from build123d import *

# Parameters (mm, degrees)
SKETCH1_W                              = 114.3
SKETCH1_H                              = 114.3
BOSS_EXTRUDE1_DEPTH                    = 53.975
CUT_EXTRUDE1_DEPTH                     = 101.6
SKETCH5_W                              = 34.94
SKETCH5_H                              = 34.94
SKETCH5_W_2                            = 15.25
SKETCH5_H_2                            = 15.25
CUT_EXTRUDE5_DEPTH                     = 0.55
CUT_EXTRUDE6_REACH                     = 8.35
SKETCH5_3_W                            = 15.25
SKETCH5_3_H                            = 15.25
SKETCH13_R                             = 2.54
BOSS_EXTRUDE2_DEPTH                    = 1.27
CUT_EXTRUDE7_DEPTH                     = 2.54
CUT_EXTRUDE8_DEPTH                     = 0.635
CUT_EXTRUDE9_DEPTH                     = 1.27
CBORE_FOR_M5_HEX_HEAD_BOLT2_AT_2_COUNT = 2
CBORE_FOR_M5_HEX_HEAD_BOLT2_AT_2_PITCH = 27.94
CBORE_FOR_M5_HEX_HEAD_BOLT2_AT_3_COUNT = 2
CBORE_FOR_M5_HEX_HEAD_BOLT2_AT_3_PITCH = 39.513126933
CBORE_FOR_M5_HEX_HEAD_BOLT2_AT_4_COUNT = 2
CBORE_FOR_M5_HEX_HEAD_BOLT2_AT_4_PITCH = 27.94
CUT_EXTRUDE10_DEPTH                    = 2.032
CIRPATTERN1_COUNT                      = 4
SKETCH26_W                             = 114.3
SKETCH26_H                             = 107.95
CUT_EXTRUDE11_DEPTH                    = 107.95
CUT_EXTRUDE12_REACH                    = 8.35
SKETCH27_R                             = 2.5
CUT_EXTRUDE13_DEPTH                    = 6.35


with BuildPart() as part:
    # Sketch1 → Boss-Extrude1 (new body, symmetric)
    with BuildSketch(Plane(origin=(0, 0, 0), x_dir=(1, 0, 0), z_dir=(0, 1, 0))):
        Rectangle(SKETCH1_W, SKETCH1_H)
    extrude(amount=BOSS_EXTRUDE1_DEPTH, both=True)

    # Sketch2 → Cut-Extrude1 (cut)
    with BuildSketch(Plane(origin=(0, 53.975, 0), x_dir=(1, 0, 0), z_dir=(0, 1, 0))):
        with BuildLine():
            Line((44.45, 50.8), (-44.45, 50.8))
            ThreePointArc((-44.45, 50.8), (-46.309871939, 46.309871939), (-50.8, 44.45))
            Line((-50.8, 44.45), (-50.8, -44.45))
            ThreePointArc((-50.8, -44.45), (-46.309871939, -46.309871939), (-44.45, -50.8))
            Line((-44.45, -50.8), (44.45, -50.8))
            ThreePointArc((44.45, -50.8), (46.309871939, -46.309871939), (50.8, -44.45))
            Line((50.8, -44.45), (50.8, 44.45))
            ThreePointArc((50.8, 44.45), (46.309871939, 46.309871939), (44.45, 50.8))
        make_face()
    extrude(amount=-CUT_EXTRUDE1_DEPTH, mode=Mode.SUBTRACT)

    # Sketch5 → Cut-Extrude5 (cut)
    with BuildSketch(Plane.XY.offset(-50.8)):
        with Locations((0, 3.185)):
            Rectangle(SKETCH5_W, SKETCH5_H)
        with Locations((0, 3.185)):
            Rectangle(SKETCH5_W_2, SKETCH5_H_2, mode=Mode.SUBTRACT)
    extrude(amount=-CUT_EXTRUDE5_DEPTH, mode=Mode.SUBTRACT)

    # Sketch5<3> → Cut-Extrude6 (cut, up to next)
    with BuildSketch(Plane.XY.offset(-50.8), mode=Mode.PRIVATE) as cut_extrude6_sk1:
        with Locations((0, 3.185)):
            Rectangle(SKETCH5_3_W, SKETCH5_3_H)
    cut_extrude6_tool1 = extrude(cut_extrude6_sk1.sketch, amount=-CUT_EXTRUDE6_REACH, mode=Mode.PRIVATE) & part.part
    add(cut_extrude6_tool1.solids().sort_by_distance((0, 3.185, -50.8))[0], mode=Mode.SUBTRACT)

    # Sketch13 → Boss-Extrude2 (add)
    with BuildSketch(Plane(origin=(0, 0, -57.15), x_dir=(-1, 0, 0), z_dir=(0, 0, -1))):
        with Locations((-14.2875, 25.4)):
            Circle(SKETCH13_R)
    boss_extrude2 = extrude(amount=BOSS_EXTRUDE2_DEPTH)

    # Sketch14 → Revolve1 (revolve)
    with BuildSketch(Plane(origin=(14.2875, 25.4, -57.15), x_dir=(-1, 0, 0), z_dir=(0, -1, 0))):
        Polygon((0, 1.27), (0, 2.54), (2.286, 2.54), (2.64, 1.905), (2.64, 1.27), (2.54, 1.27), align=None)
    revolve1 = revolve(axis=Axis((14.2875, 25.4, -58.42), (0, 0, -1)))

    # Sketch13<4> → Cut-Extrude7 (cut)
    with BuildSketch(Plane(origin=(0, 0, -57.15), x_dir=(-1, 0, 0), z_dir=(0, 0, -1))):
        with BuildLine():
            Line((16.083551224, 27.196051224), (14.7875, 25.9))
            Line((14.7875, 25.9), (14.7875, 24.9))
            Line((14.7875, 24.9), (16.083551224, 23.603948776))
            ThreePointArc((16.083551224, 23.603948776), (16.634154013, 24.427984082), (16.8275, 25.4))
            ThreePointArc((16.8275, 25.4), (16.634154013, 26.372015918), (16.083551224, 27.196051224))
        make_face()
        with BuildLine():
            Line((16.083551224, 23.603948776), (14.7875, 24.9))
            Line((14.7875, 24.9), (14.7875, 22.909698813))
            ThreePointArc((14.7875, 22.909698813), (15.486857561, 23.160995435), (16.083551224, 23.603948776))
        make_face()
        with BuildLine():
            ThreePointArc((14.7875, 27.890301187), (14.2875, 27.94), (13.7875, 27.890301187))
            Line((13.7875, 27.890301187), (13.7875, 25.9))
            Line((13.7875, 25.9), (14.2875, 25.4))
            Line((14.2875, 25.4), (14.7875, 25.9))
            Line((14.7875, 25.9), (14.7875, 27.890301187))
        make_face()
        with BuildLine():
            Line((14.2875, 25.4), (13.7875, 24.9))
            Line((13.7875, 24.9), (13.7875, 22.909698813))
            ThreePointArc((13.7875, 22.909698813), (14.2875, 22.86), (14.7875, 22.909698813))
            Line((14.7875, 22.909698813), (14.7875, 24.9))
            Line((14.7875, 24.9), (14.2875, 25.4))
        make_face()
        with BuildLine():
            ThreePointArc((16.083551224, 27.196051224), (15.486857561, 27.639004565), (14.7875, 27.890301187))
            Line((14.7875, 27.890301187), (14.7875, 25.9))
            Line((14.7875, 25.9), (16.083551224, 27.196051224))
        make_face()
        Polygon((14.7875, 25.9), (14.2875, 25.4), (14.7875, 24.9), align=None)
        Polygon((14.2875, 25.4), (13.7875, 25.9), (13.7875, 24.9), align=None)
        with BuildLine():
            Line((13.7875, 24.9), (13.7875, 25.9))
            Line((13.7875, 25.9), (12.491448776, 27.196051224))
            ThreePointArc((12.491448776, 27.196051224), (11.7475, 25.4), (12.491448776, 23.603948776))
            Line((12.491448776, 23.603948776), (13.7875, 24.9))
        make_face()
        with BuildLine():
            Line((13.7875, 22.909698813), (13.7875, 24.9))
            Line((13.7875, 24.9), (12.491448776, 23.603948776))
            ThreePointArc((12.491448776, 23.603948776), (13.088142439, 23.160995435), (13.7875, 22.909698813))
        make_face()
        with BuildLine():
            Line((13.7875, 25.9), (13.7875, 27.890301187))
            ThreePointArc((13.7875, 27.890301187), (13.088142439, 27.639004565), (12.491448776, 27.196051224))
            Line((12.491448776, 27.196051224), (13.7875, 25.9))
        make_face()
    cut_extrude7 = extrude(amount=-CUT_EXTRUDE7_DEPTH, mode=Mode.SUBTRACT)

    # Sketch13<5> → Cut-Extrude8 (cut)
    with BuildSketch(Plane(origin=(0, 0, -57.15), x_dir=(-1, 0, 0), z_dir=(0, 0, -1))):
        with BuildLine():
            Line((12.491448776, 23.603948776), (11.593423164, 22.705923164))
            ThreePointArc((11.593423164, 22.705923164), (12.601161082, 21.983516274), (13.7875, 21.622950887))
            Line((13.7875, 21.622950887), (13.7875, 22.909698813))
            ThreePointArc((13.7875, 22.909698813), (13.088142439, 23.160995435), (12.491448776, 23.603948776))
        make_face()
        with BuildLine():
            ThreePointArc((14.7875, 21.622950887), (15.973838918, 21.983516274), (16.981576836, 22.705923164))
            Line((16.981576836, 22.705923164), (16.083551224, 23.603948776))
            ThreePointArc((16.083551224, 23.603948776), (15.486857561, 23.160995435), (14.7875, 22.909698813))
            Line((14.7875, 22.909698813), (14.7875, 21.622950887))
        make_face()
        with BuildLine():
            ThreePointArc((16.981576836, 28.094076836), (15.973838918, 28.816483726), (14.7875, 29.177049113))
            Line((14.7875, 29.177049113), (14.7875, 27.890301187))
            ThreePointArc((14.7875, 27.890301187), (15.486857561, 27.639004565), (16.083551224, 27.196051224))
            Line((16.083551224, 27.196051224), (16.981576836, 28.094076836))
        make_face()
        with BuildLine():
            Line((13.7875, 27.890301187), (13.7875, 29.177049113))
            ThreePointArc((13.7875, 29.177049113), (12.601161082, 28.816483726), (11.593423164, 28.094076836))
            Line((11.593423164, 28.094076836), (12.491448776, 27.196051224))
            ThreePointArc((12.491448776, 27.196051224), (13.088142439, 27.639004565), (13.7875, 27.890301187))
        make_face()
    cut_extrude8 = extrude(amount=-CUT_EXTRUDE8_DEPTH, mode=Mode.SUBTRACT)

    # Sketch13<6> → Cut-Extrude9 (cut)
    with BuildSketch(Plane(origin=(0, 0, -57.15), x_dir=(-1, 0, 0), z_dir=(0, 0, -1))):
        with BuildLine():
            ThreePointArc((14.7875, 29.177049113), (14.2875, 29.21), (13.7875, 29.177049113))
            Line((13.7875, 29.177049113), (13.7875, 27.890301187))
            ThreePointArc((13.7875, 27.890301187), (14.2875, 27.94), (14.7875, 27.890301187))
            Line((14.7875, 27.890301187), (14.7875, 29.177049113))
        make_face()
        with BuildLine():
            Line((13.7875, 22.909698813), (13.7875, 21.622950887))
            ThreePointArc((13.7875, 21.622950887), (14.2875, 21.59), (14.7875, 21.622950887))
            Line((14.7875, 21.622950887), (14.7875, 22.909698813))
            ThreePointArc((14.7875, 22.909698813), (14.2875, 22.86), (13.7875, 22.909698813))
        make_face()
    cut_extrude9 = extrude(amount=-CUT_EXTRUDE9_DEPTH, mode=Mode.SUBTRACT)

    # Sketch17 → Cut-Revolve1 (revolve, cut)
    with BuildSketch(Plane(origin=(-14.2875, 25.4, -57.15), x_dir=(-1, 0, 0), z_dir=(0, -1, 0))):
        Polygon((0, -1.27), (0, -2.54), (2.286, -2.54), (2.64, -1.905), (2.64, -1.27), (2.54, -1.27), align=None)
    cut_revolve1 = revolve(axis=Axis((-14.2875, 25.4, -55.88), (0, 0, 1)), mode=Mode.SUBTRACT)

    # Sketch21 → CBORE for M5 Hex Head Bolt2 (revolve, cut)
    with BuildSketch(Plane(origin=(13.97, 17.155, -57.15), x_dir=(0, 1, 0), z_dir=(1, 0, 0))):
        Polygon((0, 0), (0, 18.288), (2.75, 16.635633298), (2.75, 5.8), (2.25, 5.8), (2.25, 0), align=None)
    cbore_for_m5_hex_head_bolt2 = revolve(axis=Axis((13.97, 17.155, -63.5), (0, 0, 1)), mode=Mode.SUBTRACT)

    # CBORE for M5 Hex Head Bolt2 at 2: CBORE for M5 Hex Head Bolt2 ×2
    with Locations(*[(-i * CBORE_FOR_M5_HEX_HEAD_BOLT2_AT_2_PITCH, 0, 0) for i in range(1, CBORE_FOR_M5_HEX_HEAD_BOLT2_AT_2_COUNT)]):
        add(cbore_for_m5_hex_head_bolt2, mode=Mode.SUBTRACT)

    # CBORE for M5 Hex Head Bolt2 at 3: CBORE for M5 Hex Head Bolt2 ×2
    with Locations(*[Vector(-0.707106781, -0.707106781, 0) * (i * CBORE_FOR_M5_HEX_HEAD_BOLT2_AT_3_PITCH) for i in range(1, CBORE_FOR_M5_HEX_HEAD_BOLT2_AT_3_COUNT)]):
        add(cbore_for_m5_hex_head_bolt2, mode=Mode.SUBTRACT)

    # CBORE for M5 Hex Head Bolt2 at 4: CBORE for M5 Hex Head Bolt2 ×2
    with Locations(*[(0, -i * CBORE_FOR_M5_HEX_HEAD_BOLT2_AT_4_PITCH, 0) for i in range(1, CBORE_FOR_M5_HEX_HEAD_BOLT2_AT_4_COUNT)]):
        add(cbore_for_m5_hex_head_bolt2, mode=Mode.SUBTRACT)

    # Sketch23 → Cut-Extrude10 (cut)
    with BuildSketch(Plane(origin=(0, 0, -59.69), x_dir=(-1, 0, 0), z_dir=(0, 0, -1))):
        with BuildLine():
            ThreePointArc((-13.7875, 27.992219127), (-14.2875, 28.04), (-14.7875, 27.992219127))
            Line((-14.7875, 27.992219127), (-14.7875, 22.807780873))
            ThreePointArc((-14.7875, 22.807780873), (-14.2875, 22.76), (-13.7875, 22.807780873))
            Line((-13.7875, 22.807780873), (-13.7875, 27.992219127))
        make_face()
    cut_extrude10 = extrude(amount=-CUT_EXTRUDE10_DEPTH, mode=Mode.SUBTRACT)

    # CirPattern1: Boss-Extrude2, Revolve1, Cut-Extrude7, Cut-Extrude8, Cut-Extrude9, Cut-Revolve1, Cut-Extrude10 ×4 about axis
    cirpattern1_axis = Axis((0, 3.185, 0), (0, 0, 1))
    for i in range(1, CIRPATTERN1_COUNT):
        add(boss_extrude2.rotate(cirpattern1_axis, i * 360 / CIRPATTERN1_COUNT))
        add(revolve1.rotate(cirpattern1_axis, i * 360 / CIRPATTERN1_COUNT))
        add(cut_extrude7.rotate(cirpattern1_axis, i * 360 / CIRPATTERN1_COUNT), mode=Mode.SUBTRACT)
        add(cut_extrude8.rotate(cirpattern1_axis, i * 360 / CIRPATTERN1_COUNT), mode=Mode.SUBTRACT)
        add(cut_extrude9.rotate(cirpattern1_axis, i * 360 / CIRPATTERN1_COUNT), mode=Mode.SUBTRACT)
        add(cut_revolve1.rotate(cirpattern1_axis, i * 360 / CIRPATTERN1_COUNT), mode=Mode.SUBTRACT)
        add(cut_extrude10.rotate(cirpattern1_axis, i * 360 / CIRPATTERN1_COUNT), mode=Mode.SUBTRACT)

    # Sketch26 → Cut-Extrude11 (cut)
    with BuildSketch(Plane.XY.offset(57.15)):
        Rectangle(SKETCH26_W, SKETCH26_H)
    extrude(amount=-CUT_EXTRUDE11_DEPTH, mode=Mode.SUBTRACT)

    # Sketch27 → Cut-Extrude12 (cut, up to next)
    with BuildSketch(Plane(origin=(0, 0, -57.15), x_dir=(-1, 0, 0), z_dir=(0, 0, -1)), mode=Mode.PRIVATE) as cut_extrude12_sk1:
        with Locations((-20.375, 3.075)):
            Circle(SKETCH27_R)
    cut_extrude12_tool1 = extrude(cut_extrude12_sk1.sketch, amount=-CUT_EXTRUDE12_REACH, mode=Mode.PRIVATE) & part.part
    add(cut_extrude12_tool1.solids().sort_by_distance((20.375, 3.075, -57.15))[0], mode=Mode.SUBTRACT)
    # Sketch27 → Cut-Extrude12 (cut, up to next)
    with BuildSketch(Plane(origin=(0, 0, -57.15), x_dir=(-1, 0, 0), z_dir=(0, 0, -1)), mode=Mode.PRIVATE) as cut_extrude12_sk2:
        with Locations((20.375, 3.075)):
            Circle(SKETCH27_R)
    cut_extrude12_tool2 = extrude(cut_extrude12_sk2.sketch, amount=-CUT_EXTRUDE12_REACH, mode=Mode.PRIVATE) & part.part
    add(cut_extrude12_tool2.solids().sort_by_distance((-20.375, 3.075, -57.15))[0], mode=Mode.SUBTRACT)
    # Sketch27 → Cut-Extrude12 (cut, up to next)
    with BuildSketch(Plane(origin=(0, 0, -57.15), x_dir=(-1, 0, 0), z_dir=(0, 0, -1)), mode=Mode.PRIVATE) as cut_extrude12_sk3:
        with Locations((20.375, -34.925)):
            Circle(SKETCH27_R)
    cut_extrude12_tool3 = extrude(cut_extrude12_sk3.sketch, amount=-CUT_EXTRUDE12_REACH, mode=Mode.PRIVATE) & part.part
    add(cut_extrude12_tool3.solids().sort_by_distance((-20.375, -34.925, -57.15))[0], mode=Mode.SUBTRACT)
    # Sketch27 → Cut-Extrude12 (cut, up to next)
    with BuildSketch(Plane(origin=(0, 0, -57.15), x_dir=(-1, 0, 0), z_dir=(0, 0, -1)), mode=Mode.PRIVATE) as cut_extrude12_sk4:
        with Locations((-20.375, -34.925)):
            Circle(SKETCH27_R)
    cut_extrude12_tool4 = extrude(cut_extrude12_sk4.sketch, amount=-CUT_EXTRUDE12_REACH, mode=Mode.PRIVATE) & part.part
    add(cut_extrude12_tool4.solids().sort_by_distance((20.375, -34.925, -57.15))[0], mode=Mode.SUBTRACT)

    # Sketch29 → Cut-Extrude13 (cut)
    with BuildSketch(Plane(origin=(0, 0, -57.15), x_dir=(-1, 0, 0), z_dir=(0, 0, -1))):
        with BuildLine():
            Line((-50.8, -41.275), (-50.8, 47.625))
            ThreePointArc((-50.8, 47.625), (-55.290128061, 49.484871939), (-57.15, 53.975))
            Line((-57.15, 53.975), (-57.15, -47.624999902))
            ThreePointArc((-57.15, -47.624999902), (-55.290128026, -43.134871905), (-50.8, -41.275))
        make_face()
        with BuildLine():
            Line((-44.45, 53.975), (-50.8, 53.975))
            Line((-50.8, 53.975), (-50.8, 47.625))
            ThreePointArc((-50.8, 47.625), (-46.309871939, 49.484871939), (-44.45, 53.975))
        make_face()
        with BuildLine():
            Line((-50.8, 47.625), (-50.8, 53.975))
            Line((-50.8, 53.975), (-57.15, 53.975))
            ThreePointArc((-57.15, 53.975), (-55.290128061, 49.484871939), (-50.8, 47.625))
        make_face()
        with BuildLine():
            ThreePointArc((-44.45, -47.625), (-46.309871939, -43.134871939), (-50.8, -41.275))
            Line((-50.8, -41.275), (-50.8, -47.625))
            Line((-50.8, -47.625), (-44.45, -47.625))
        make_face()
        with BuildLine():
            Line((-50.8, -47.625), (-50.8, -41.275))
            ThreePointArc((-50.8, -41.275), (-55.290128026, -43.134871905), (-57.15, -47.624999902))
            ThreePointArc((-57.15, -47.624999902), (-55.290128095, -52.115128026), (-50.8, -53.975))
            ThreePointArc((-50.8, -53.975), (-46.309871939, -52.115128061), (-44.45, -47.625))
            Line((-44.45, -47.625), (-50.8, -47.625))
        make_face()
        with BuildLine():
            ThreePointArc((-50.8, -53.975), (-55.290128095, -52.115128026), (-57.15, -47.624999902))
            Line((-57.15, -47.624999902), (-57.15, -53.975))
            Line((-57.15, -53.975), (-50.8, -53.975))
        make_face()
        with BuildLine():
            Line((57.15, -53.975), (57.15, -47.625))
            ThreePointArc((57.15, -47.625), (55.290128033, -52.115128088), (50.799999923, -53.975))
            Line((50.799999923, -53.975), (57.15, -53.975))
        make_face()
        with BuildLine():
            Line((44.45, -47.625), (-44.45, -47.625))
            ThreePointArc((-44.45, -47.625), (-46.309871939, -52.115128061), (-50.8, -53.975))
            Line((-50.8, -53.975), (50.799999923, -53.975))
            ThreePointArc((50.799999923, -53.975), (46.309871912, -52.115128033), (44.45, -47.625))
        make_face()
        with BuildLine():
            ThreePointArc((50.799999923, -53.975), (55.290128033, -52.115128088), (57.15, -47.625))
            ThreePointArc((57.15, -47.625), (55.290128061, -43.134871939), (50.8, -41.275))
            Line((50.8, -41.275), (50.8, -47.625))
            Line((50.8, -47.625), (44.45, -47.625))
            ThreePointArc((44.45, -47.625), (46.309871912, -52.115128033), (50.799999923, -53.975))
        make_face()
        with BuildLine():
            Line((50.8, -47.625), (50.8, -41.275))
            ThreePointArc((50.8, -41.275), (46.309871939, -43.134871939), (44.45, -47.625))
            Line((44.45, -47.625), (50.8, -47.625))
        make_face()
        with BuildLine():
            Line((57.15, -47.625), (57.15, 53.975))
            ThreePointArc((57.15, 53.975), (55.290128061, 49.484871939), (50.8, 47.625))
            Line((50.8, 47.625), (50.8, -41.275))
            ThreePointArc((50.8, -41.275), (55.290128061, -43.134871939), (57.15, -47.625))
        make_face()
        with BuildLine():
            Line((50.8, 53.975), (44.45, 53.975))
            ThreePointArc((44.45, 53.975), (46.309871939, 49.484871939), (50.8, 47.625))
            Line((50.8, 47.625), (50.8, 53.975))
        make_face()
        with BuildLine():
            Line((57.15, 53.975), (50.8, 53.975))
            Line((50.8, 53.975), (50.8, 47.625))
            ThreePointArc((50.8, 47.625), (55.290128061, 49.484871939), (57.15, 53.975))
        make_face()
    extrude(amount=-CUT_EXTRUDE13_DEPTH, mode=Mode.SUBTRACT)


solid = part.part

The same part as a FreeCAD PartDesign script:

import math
import FreeCAD as App
import Part
import Sketcher
Q = App.Units.Quantity


def add_polygon(sketch, points):
    """Adds a closed chain of lines whose ends are joined by coincident constraints."""
    first, n = sketch.GeometryCount, len(points)
    for a, b in zip(points, points[1:] + points[:1]):
        sketch.addGeometry(Part.LineSegment(App.Vector(*a, 0), App.Vector(*b, 0)), False)
    for i in range(n):
        sketch.addConstraint(Sketcher.Constraint("Coincident", first + i, 2, first + (i + 1) % n, 1))

doc = App.newDocument("Part")
body = doc.addObject("PartDesign::Body", "Body")

sketch1 = doc.addObject("Sketcher::SketchObject", "Sketch")
body.addObject(sketch1)
sketch1.AttachmentSupport = (doc.XZ_Plane, [""])
sketch1.MapMode = "FlatFace"
add_polygon(sketch1, [(-57.15, -57.15), (-57.15, 57.15), (57.15, 57.15), (57.15, -57.15)])
sketch1.addConstraint([
    Sketcher.Constraint("Vertical", 0),
    Sketcher.Constraint("Horizontal", 1),
    Sketcher.Constraint("Vertical", 2),
    Sketcher.Constraint("Horizontal", 3),
    Sketcher.Constraint("Symmetric", 0, 2, 2, 2, -1, 1),
    Sketcher.Constraint("Equal", 3, 0),
    Sketcher.Constraint("DistanceX", 1, 1, 1, 2, Q("4.5 in")),
])
pad1 = doc.addObject("PartDesign::Pad", "Pad")
body.addObject(pad1)
pad1.Profile = sketch1
pad1.Length = Q("4.25 in")
pad1.Midplane = True

sketch2 = doc.addObject("Sketcher::SketchObject", "Sketch001")
body.addObject(sketch2)
sketch2.AttachmentSupport = (doc.XZ_Plane, [""])
sketch2.MapMode = "FlatFace"
sketch2.AttachmentOffset = App.Placement(App.Vector(0, 0, -2.125 * 25.4), App.Rotation())
sketch2.addGeometry([
    Part.LineSegment(App.Vector(44.45, -50.8, 0), App.Vector(-44.45, -50.8, 0)),
    Part.ArcOfCircle(Part.Circle(App.Vector(-50.8, -50.8, 0), App.Vector(0, 0, 1), 6.35), math.radians(0), math.radians(90)),
    Part.LineSegment(App.Vector(-50.8, -44.45, 0), App.Vector(-50.8, 44.45, 0)),
    Part.ArcOfCircle(Part.Circle(App.Vector(-50.8, 50.8, 0), App.Vector(0, 0, 1), 6.35), math.radians(-90), math.radians(0)),
    Part.LineSegment(App.Vector(-44.45, 50.8, 0), App.Vector(44.45, 50.8, 0)),
    Part.ArcOfCircle(Part.Circle(App.Vector(50.8, 50.8, 0), App.Vector(0, 0, 1), 6.35), math.radians(180), math.radians(270)),
    Part.LineSegment(App.Vector(50.8, 44.45, 0), App.Vector(50.8, -44.45, 0)),
    Part.ArcOfCircle(Part.Circle(App.Vector(50.8, -50.8, 0), App.Vector(0, 0, 1), 6.35), math.radians(90), math.radians(180)),
], False)
sketch2.addConstraint([
    Sketcher.Constraint("Coincident", 0, 2, 1, 1),
    Sketcher.Constraint("Coincident", 1, 2, 2, 1),
    Sketcher.Constraint("Coincident", 2, 2, 3, 1),
    Sketcher.Constraint("Coincident", 3, 2, 4, 1),
    Sketcher.Constraint("Coincident", 4, 2, 5, 1),
    Sketcher.Constraint("Coincident", 5, 2, 6, 1),
    Sketcher.Constraint("Coincident", 6, 2, 7, 1),
    Sketcher.Constraint("Coincident", 7, 2, 0, 1),
    Sketcher.Constraint("Horizontal", 0),
    Sketcher.Constraint("Vertical", 2),
    Sketcher.Constraint("Horizontal", 4),
    Sketcher.Constraint("Vertical", 6),
    Sketcher.Constraint("Equal", 1, 3),
    Sketcher.Constraint("Equal", 3, 5),
    Sketcher.Constraint("Equal", 5, 7),
    Sketcher.Constraint("Symmetric", 1, 3, 5, 3, -1, 1),
    Sketcher.Constraint("Symmetric", 3, 3, 7, 3, -1, 1),
    Sketcher.Constraint("Symmetric", 3, 3, 5, 3, -2),
    Sketcher.Constraint("Horizontal", 7, 3, 0, 2),
    Sketcher.Constraint("Horizontal", 5, 3, 3, 2),
    Sketcher.Constraint("Vertical", 3, 3, 1, 2),
    Sketcher.Constraint("Vertical", 7, 3, 5, 2),
    Sketcher.Constraint("Equal", 4, 2),
    Sketcher.Constraint("Radius", 1, Q("0.25 in")),
    Sketcher.Constraint("DistanceX", 0, 2, 0, 1, Q("3.5 in")),
])
pocket1 = doc.addObject("PartDesign::Pocket", "Pocket")
body.addObject(pocket1)
pocket1.Profile = sketch2
pocket1.Length = Q("4 in")
pocket1.Reversed = True

sketch3 = doc.addObject("Sketcher::SketchObject", "Sketch002")
body.addObject(sketch3)
sketch3.AttachmentSupport = (doc.XY_Plane, [""])
sketch3.MapMode = "FlatFace"
sketch3.AttachmentOffset = App.Placement(App.Vector(0, 0, -2 * 25.4), App.Rotation())
add_polygon(sketch3, [(-17.47, 20.655), (-17.47, -14.285), (17.47, -14.285), (17.47, 20.655)])
add_polygon(sketch3, [(7.625, -4.44), (-7.625, -4.44), (-7.625, 10.81), (7.625, 10.81)])
sketch3.addConstraint([
    Sketcher.Constraint("Vertical", 0),
    Sketcher.Constraint("Horizontal", 1),
    Sketcher.Constraint("Vertical", 2),
    Sketcher.Constraint("Horizontal", 3),
    Sketcher.Constraint("Horizontal", 4),
    Sketcher.Constraint("Vertical", 5),
    Sketcher.Constraint("Horizontal", 6),
    Sketcher.Constraint("Vertical", 7),
    Sketcher.Constraint("Equal", 3, 0),
    Sketcher.Constraint("Equal", 6, 5),
    Sketcher.Constraint("DistanceX", 1, 1, 1, 2, Q("34.94 mm")),
    Sketcher.Constraint("DistanceX", 4, 2, 4, 1, Q("15.25 mm")),
    Sketcher.Constraint("DistanceX", 0, 2, -1, 1, Q("17.47 mm")),
    Sketcher.Constraint("DistanceY", 0, 2, -1, 1, Q("14.285 mm")),
    Sketcher.Constraint("DistanceX", 4, 2, -1, 1, Q("7.625 mm")),
    Sketcher.Constraint("DistanceY", 4, 2, -1, 1, Q("4.44 mm")),
])
pocket2 = doc.addObject("PartDesign::Pocket", "Pocket001")
body.addObject(pocket2)
pocket2.Profile = sketch3
pocket2.Length = 0.55

sketch4 = doc.addObject("Sketcher::SketchObject", "Sketch003")
body.addObject(sketch4)
sketch4.AttachmentSupport = (doc.XY_Plane, [""])
sketch4.MapMode = "FlatFace"
sketch4.AttachmentOffset = App.Placement(App.Vector(0, 0, -2 * 25.4), App.Rotation())
add_polygon(sketch4, [(-7.625, 10.81), (-7.625, -4.44), (7.625, -4.44), (7.625, 10.81)])
sketch4.addConstraint([
    Sketcher.Constraint("Vertical", 0),
    Sketcher.Constraint("Horizontal", 1),
    Sketcher.Constraint("Vertical", 2),
    Sketcher.Constraint("Horizontal", 3),
    Sketcher.Constraint("Equal", 3, 0),
    Sketcher.Constraint("DistanceX", 1, 1, 1, 2, Q("15.25 mm")),
    Sketcher.Constraint("DistanceX", 0, 2, -1, 1, Q("7.625 mm")),
    Sketcher.Constraint("DistanceY", 0, 2, -1, 1, Q("4.44 mm")),
])
pocket3 = doc.addObject("PartDesign::Pocket", "Pocket002")
body.addObject(pocket3)
pocket3.Profile = sketch4
pocket3.Type = "UpToFirst"

sketch5 = doc.addObject("Sketcher::SketchObject", "Sketch004")
body.addObject(sketch5)
sketch5.AttachmentSupport = (doc.XY_Plane, [""])
sketch5.MapMode = "FlatFace"
sketch5.AttachmentOffset = App.Placement(App.Vector(0, 0, -2.25 * 25.4), App.Rotation())
sketch5.addGeometry(Part.Circle(App.Vector(14.2875, 25.4, 0), App.Vector(0, 0, 1), 2.54), False)
sketch5.addConstraint([
    Sketcher.Constraint("Diameter", 0, Q("0.2 in")),
    Sketcher.Constraint("DistanceY", -1, 1, 0, 3, Q("1 in")),
    Sketcher.Constraint("DistanceX", -1, 1, 0, 3, Q("0.5625 in")),
])
pad2 = doc.addObject("PartDesign::Pad", "Pad001")
body.addObject(pad2)
pad2.Profile = sketch5
pad2.Length = Q("0.05 in")
pad2.Reversed = True

sketch6 = doc.addObject("Sketcher::SketchObject", "Sketch005")
body.addObject(sketch6)
sketch6.AttachmentSupport = (doc.XZ_Plane, [""])
sketch6.MapMode = "FlatFace"
sketch6.AttachmentOffset = App.Placement(App.Vector(0, 0, -1 * 25.4), App.Rotation())
add_polygon(sketch6, [(14.2875, -59.69), (14.2875, -58.42), (11.6475, -58.42), (11.6475, -59.055), (12.0015, -59.69)])
sketch6.addGeometry(Part.LineSegment(App.Vector(14.2875, -58.42, 0), App.Vector(14.2875, -59.69, 0)), True)
sketch6.addConstraint([
    Sketcher.Constraint("Vertical", 0),
    Sketcher.Constraint("Horizontal", 1),
    Sketcher.Constraint("Vertical", 2),
    Sketcher.Constraint("Horizontal", 4),
    Sketcher.Constraint("Vertical", 5),
    Sketcher.Constraint("Coincident", 5, 1, 0, 2),
    Sketcher.Constraint("Horizontal", 3, 2, 5, 2),
    Sketcher.Constraint("DistanceX", 4, 1, 4, 2, Q("0.09 in")),
    Sketcher.Constraint("DistanceY", 0, 1, 0, 2, Q("0.05 in")),
    Sketcher.Constraint("DistanceY", 0, 2, -1, 1, Q("2.3 in")),
    Sketcher.Constraint("DistanceY", 2, 2, 2, 1, Q("0.025 in")),
    Sketcher.Constraint("DistanceX", -1, 1, 0, 2, Q("0.5625 in")),
    Sketcher.Constraint("DistanceX", 1, 2, 1, 1, Q("2.64 mm")),
])
revolution = doc.addObject("PartDesign::Revolution", "Revolution")
body.addObject(revolution)
revolution.Profile = sketch6
revolution.ReferenceAxis = (sketch6, ["Axis0"])
revolution.Angle = 360

sketch7 = doc.addObject("Sketcher::SketchObject", "Sketch006")
body.addObject(sketch7)
sketch7.AttachmentSupport = (doc.XY_Plane, [""])
sketch7.MapMode = "FlatFace"
sketch7.AttachmentOffset = App.Placement(App.Vector(0, 0, -2.25 * 25.4), App.Rotation())
sketch7.addGeometry([
    Part.ArcOfCircle(Part.Circle(App.Vector(-14.2875, 25.4, 0), App.Vector(0, 0, 1), 2.54), math.radians(-101.352839), math.radians(-78.647161)),
    Part.ArcOfCircle(Part.Circle(App.Vector(-14.2875, 25.4, 0), App.Vector(0, 0, 1), 2.54), math.radians(-135), math.radians(-101.352839)),
    Part.ArcOfCircle(Part.Circle(App.Vector(-14.2875, 25.4, 0), App.Vector(0, 0, 1), 2.54), math.radians(180), math.radians(225)),
    Part.ArcOfCircle(Part.Circle(App.Vector(-14.2875, 25.4, 0), App.Vector(0, 0, 1), 2.54), math.radians(135), math.radians(180)),
    Part.ArcOfCircle(Part.Circle(App.Vector(-14.2875, 25.4, 0), App.Vector(0, 0, 1), 2.54), math.radians(101.352839), math.radians(135)),
    Part.ArcOfCircle(Part.Circle(App.Vector(-14.2875, 25.4, 0), App.Vector(0, 0, 1), 2.54), math.radians(78.647161), math.radians(101.352839)),
    Part.ArcOfCircle(Part.Circle(App.Vector(-14.2875, 25.4, 0), App.Vector(0, 0, 1), 2.54), math.radians(45), math.radians(78.647161)),
    Part.ArcOfCircle(Part.Circle(App.Vector(-14.2875, 25.4, 0), App.Vector(0, 0, 1), 2.54), math.radians(-45), math.radians(45)),
    Part.ArcOfCircle(Part.Circle(App.Vector(-14.2875, 25.4, 0), App.Vector(0, 0, 1), 2.54), math.radians(-78.647161), math.radians(-45)),
], False)
sketch7.addConstraint([
    Sketcher.Constraint("Tangent", 0, 1, 1, 2),
    Sketcher.Constraint("Tangent", 1, 1, 2, 2),
    Sketcher.Constraint("Tangent", 2, 1, 3, 2),
    Sketcher.Constraint("Tangent", 3, 1, 4, 2),
    Sketcher.Constraint("Tangent", 4, 1, 5, 2),
    Sketcher.Constraint("Tangent", 5, 1, 6, 2),
    Sketcher.Constraint("Tangent", 6, 1, 7, 2),
    Sketcher.Constraint("Tangent", 7, 1, 8, 2),
    Sketcher.Constraint("Tangent", 8, 1, 0, 2),
    Sketcher.Constraint("Coincident", 2, 3, 0, 3),
    Sketcher.Constraint("Coincident", 4, 3, 0, 3),
    Sketcher.Constraint("Coincident", 6, 3, 0, 3),
    Sketcher.Constraint("Horizontal", 8, 3, 2, 1),
    Sketcher.Constraint("Horizontal", 4, 1, 5, 1),
    Sketcher.Constraint("Horizontal", 3, 1, 6, 1),
    Sketcher.Constraint("Horizontal", 1, 1, 7, 1),
    Sketcher.Constraint("Horizontal", 0, 1, 8, 1),
    Sketcher.Constraint("Vertical", 1, 1, 3, 1),
    Sketcher.Constraint("Vertical", 0, 1, 4, 1),
    Sketcher.Constraint("Radius", 0, Q("0.1 in")),
    Sketcher.Constraint("DistanceY", -1, 1, 0, 3, Q("1 in")),
    Sketcher.Constraint("DistanceX", 0, 3, -1, 1, Q("0.5625 in")),
    Sketcher.Constraint("DistanceX", 0, 1, -1, 1, Q("14.7875 mm")),
    Sketcher.Constraint("DistanceX", 1, 1, -1, 1, Q("16.083551 mm")),
])
pocket4 = doc.addObject("PartDesign::Pocket", "Pocket003")
body.addObject(pocket4)
pocket4.Profile = sketch7
pocket4.Length = Q("0.1 in")
pocket4.Reversed = True

sketch8 = doc.addObject("Sketcher::SketchObject", "Sketch007")
body.addObject(sketch8)
sketch8.AttachmentSupport = (doc.XY_Plane, [""])
sketch8.MapMode = "FlatFace"
sketch8.AttachmentOffset = App.Placement(App.Vector(0, 0, -2.25 * 25.4), App.Rotation())
sketch8.addGeometry([
    Part.LineSegment(App.Vector(-12.491449, 23.603949, 0), App.Vector(-11.593423, 22.705923, 0)),
    Part.ArcOfCircle(Part.Circle(App.Vector(-14.2875, 25.4, 0), App.Vector(0, 0, 1), 3.81), math.radians(-82.459117), math.radians(-45)),
    Part.LineSegment(App.Vector(-13.7875, 21.622951, 0), App.Vector(-13.7875, 22.909699, 0)),
    Part.ArcOfCircle(Part.Circle(App.Vector(-14.2875, 25.4, 0), App.Vector(0, 0, 1), 2.54), math.radians(-78.647161), math.radians(-45)),
    Part.ArcOfCircle(Part.Circle(App.Vector(-14.2875, 25.4, 0), App.Vector(0, 0, 1), 3.81), math.radians(-135), math.radians(-97.540883)),
    Part.LineSegment(App.Vector(-16.981577, 22.705923, 0), App.Vector(-16.083551, 23.603949, 0)),
    Part.ArcOfCircle(Part.Circle(App.Vector(-14.2875, 25.4, 0), App.Vector(0, 0, 1), 2.54), math.radians(-135), math.radians(-101.352839)),
    Part.LineSegment(App.Vector(-14.7875, 22.909699, 0), App.Vector(-14.7875, 21.622951, 0)),
    Part.ArcOfCircle(Part.Circle(App.Vector(-14.2875, 25.4, 0), App.Vector(0, 0, 1), 3.81), math.radians(97.540883), math.radians(135)),
    Part.LineSegment(App.Vector(-14.7875, 29.177049, 0), App.Vector(-14.7875, 27.890301, 0)),
    Part.ArcOfCircle(Part.Circle(App.Vector(-14.2875, 25.4, 0), App.Vector(0, 0, 1), 2.54), math.radians(101.352839), math.radians(135)),
    Part.LineSegment(App.Vector(-16.083551, 27.196051, 0), App.Vector(-16.981577, 28.094077, 0)),
    Part.LineSegment(App.Vector(-13.7875, 27.890301, 0), App.Vector(-13.7875, 29.177049, 0)),
    Part.ArcOfCircle(Part.Circle(App.Vector(-14.2875, 25.4, 0), App.Vector(0, 0, 1), 3.81), math.radians(45), math.radians(82.459117)),
    Part.LineSegment(App.Vector(-11.593423, 28.094077, 0), App.Vector(-12.491449, 27.196051, 0)),
    Part.ArcOfCircle(Part.Circle(App.Vector(-14.2875, 25.4, 0), App.Vector(0, 0, 1), 2.54), math.radians(45), math.radians(78.647161)),
], False)
sketch8.addConstraint([
    Sketcher.Constraint("Coincident", 0, 2, 1, 2),
    Sketcher.Constraint("Coincident", 1, 1, 2, 1),
    Sketcher.Constraint("Coincident", 2, 2, 3, 1),
    Sketcher.Constraint("Coincident", 3, 2, 0, 1),
    Sketcher.Constraint("Coincident", 4, 1, 5, 1),
    Sketcher.Constraint("Coincident", 5, 2, 6, 1),
    Sketcher.Constraint("Coincident", 6, 2, 7, 1),
    Sketcher.Constraint("Coincident", 7, 2, 4, 2),
    Sketcher.Constraint("Coincident", 8, 1, 9, 1),
    Sketcher.Constraint("Coincident", 9, 2, 10, 1),
    Sketcher.Constraint("Coincident", 10, 2, 11, 1),
    Sketcher.Constraint("Coincident", 11, 2, 8, 2),
    Sketcher.Constraint("Coincident", 12, 2, 13, 2),
    Sketcher.Constraint("Coincident", 13, 1, 14, 1),
    Sketcher.Constraint("Coincident", 14, 2, 15, 1),
    Sketcher.Constraint("Coincident", 15, 2, 12, 1),
    Sketcher.Constraint("Vertical", 2),
    Sketcher.Constraint("Vertical", 7),
    Sketcher.Constraint("Vertical", 9),
    Sketcher.Constraint("Vertical", 12),
    Sketcher.Constraint("Coincident", 3, 3, 1, 3),
    Sketcher.Constraint("Coincident", 4, 3, 1, 3),
    Sketcher.Constraint("Coincident", 6, 3, 1, 3),
    Sketcher.Constraint("Coincident", 8, 3, 1, 3),
    Sketcher.Constraint("Coincident", 10, 3, 1, 3),
    Sketcher.Constraint("Coincident", 13, 3, 1, 3),
    Sketcher.Constraint("Coincident", 15, 3, 1, 3),
    Sketcher.Constraint("Equal", 1, 4),
    Sketcher.Constraint("Equal", 3, 6),
    Sketcher.Constraint("Equal", 4, 8),
    Sketcher.Constraint("Equal", 6, 10),
    Sketcher.Constraint("Equal", 8, 13),
    Sketcher.Constraint("Equal", 10, 15),
    Sketcher.Constraint("Perpendicular", 0, 5),
    Sketcher.Constraint("Perpendicular", 5, 11),
    Sketcher.Constraint("Perpendicular", 11, 14),
    Sketcher.Constraint("Horizontal", 0, 2, 4, 1),
    Sketcher.Constraint("Horizontal", 3, 2, 5, 2),
    Sketcher.Constraint("Horizontal", 2, 2, 6, 2),
    Sketcher.Constraint("Horizontal", 8, 1, 12, 2),
    Sketcher.Constraint("Horizontal", 11, 2, 13, 1),
    Sketcher.Constraint("Vertical", 7, 2, 8, 1),
    Sketcher.Constraint("Vertical", 5, 2, 10, 2),
    Sketcher.Constraint("Radius", 3, Q("0.1 in")),
    Sketcher.Constraint("Radius", 1, Q("0.15 in")),
    Sketcher.Constraint("DistanceY", -1, 1, 1, 3, Q("1 in")),
    Sketcher.Constraint("DistanceX", 1, 3, -1, 1, Q("0.5625 in")),
    Sketcher.Constraint("DistanceX", 1, 1, -1, 1, Q("13.7875 mm")),
    Sketcher.Constraint("DistanceX", 3, 2, -1, 1, Q("12.491449 mm")),
])
pocket5 = doc.addObject("PartDesign::Pocket", "Pocket004")
body.addObject(pocket5)
pocket5.Profile = sketch8
pocket5.Length = Q("0.025 in")
pocket5.Reversed = True

sketch9 = doc.addObject("Sketcher::SketchObject", "Sketch008")
body.addObject(sketch9)
sketch9.AttachmentSupport = (doc.XY_Plane, [""])
sketch9.MapMode = "FlatFace"
sketch9.AttachmentOffset = App.Placement(App.Vector(0, 0, -2.25 * 25.4), App.Rotation())
sketch9.addGeometry([
    Part.ArcOfCircle(Part.Circle(App.Vector(-14.2875, 25.4, 0), App.Vector(0, 0, 1), 3.81), math.radians(82.459117), math.radians(97.540883)),
    Part.LineSegment(App.Vector(-13.7875, 29.177049, 0), App.Vector(-13.7875, 27.890301, 0)),
    Part.ArcOfCircle(Part.Circle(App.Vector(-14.2875, 25.4, 0), App.Vector(0, 0, 1), 2.54), math.radians(78.647161), math.radians(101.352839)),
    Part.LineSegment(App.Vector(-14.7875, 27.890301, 0), App.Vector(-14.7875, 29.177049, 0)),
    Part.LineSegment(App.Vector(-13.7875, 22.909699, 0), App.Vector(-13.7875, 21.622951, 0)),
    Part.ArcOfCircle(Part.Circle(App.Vector(-14.2875, 25.4, 0), App.Vector(0, 0, 1), 3.81), math.radians(-97.540883), math.radians(-82.459117)),
    Part.LineSegment(App.Vector(-14.7875, 21.622951, 0), App.Vector(-14.7875, 22.909699, 0)),
    Part.ArcOfCircle(Part.Circle(App.Vector(-14.2875, 25.4, 0), App.Vector(0, 0, 1), 2.54), math.radians(-101.352839), math.radians(-78.647161)),
], False)
sketch9.addConstraint([
    Sketcher.Constraint("Coincident", 0, 1, 1, 1),
    Sketcher.Constraint("Coincident", 1, 2, 2, 1),
    Sketcher.Constraint("Coincident", 2, 2, 3, 1),
    Sketcher.Constraint("Coincident", 3, 2, 0, 2),
    Sketcher.Constraint("Coincident", 4, 2, 5, 2),
    Sketcher.Constraint("Coincident", 5, 1, 6, 1),
    Sketcher.Constraint("Coincident", 6, 2, 7, 1),
    Sketcher.Constraint("Coincident", 7, 2, 4, 1),
    Sketcher.Constraint("Vertical", 1),
    Sketcher.Constraint("Vertical", 3),
    Sketcher.Constraint("Vertical", 4),
    Sketcher.Constraint("Vertical", 6),
    Sketcher.Constraint("Coincident", 2, 3, 0, 3),
    Sketcher.Constraint("Coincident", 5, 3, 0, 3),
    Sketcher.Constraint("Coincident", 7, 3, 0, 3),
    Sketcher.Constraint("Equal", 0, 5),
    Sketcher.Constraint("Equal", 2, 7),
    Sketcher.Constraint("Horizontal", 1, 2, 2, 2),
    Sketcher.Constraint("Horizontal", 4, 2, 5, 1),
    Sketcher.Constraint("Vertical", 1, 2, 4, 2),
    Sketcher.Constraint("Radius", 2, Q("0.1 in")),
    Sketcher.Constraint("Radius", 0, Q("0.15 in")),
    Sketcher.Constraint("DistanceY", -1, 1, 0, 3, Q("1 in")),
    Sketcher.Constraint("DistanceX", 0, 3, -1, 1, Q("0.5625 in")),
    Sketcher.Constraint("DistanceX", 0, 1, -1, 1, Q("13.7875 mm")),
])
pocket6 = doc.addObject("PartDesign::Pocket", "Pocket005")
body.addObject(pocket6)
pocket6.Profile = sketch9
pocket6.Length = Q("0.05 in")
pocket6.Reversed = True

sketch10 = doc.addObject("Sketcher::SketchObject", "Sketch009")
body.addObject(sketch10)
sketch10.AttachmentSupport = (doc.XZ_Plane, [""])
sketch10.MapMode = "FlatFace"
sketch10.AttachmentOffset = App.Placement(App.Vector(0, 0, -1 * 25.4), App.Rotation())
add_polygon(sketch10, [(-14.2875, -55.88), (-14.2875, -54.61), (-16.5735, -54.61), (-16.9275, -55.245), (-16.9275, -55.88)])
sketch10.addGeometry(Part.LineSegment(App.Vector(-14.2875, -55.88, 0), App.Vector(-14.2875, -54.61, 0)), True)
sketch10.addConstraint([
    Sketcher.Constraint("Vertical", 0),
    Sketcher.Constraint("Horizontal", 1),
    Sketcher.Constraint("Vertical", 3),
    Sketcher.Constraint("Horizontal", 4),
    Sketcher.Constraint("Vertical", 5),
    Sketcher.Constraint("Coincident", 5, 1, 4, 2),
    Sketcher.Constraint("Horizontal", 1, 2, 5, 2),
    Sketcher.Constraint("DistanceX", 1, 2, 1, 1, Q("0.09 in")),
    Sketcher.Constraint("DistanceY", 0, 1, 0, 2, Q("0.05 in")),
    Sketcher.Constraint("DistanceY", 3, 2, -1, 1, Q("2.2 in")),
    Sketcher.Constraint("DistanceY", 3, 2, 3, 1, Q("0.025 in")),
    Sketcher.Constraint("DistanceX", 0, 2, -1, 1, Q("0.5625 in")),
    Sketcher.Constraint("DistanceX", 4, 1, 4, 2, Q("2.64 mm")),
])
groove = doc.addObject("PartDesign::Groove", "Groove")
body.addObject(groove)
groove.Profile = sketch10
groove.ReferenceAxis = (sketch10, ["Axis0"])
groove.Angle = 360

sketch11 = doc.addObject("Sketcher::SketchObject", "Sketch010")
body.addObject(sketch11)
sketch11.AttachmentSupport = (doc.YZ_Plane, [""])
sketch11.MapMode = "FlatFace"
sketch11.AttachmentOffset = App.Placement(App.Vector(0, 0, 0.55 * 25.4), App.Rotation())
add_polygon(sketch11, [(17.155, -38.862), (17.155, -57.15), (19.405, -57.15), (19.405, -51.35), (19.905, -51.35), (19.905, -40.514367)])
sketch11.addGeometry(Part.LineSegment(App.Vector(17.155, -57.15, 0), App.Vector(17.155, -38.862, 0)), True)
sketch11.addConstraint([
    Sketcher.Constraint("Vertical", 0),
    Sketcher.Constraint("Horizontal", 1),
    Sketcher.Constraint("Vertical", 2),
    Sketcher.Constraint("Horizontal", 3),
    Sketcher.Constraint("Vertical", 4),
    Sketcher.Constraint("Vertical", 6),
    Sketcher.Constraint("Coincident", 6, 1, 0, 2),
    Sketcher.Constraint("Equal", 0, 6),
    Sketcher.Constraint("Angle", 5, Q("149 deg")),
    Sketcher.Constraint("DistanceY", 0, 2, 0, 1, Q("0.72 in")),
    Sketcher.Constraint("DistanceY", 0, 2, -1, 1, Q("2.25 in")),
    Sketcher.Constraint("DistanceX", 1, 1, 1, 2, Q("2.25 mm")),
    Sketcher.Constraint("DistanceX", 3, 1, 3, 2, Q("0.5 mm")),
    Sketcher.Constraint("DistanceY", 2, 1, 2, 2, Q("5.8 mm")),
    Sketcher.Constraint("DistanceX", -1, 1, 0, 2, Q("17.155 mm")),
])
groove2 = doc.addObject("PartDesign::Groove", "Groove001")
body.addObject(groove2)
groove2.Profile = sketch11
groove2.ReferenceAxis = (sketch11, ["Axis0"])
groove2.Angle = 360
doc.recompute()

linearpattern = doc.addObject("PartDesign::LinearPattern", "LinearPattern")
body.addObject(linearpattern)
linearpattern.Originals = [groove2]
linearpattern.Direction = (doc.X_Axis, [""])
linearpattern.Mode = "offset"
linearpattern.Offset = Q("1.1 in")
linearpattern.Occurrences = 2
linearpattern.Reversed = True
body.Tip = linearpattern
doc.recompute()

datumline = doc.addObject("PartDesign::Line", "DatumLine")
body.addObject(datumline)
datumline.Placement = App.Placement(App.Vector(0, 0, 0), App.Rotation(App.Vector(0, 0, 1), App.Vector(-0.707106781, -0.707106781, 0)))
linearpattern2 = doc.addObject("PartDesign::LinearPattern", "LinearPattern001")
body.addObject(linearpattern2)
linearpattern2.Originals = [groove2]
linearpattern2.Direction = (datumline, [""])
linearpattern2.Mode = "offset"
linearpattern2.Offset = 39.513127
linearpattern2.Occurrences = 2
body.Tip = linearpattern2
doc.recompute()

linearpattern3 = doc.addObject("PartDesign::LinearPattern", "LinearPattern002")
body.addObject(linearpattern3)
linearpattern3.Originals = [groove2]
linearpattern3.Direction = (doc.Y_Axis, [""])
linearpattern3.Mode = "offset"
linearpattern3.Offset = Q("1.1 in")
linearpattern3.Occurrences = 2
linearpattern3.Reversed = True
body.Tip = linearpattern3

sketch12 = doc.addObject("Sketcher::SketchObject", "Sketch011")
body.addObject(sketch12)
sketch12.AttachmentSupport = (doc.XY_Plane, [""])
sketch12.MapMode = "FlatFace"
sketch12.AttachmentOffset = App.Placement(App.Vector(0, 0, -2.35 * 25.4), App.Rotation())
sketch12.addGeometry([
    Part.ArcOfCircle(Part.Circle(App.Vector(14.2875, 25.4, 0), App.Vector(0, 0, 1), 2.64), math.radians(79.082583), math.radians(100.917417)),
    Part.LineSegment(App.Vector(14.7875, 27.992219, 0), App.Vector(14.7875, 22.807781, 0)),
    Part.ArcOfCircle(Part.Circle(App.Vector(14.2875, 25.4, 0), App.Vector(0, 0, 1), 2.64), math.radians(-100.917417), math.radians(-79.082583)),
    Part.LineSegment(App.Vector(13.7875, 22.807781, 0), App.Vector(13.7875, 27.992219, 0)),
], False)
sketch12.addConstraint([
    Sketcher.Constraint("Coincident", 0, 1, 1, 1),
    Sketcher.Constraint("Coincident", 1, 2, 2, 2),
    Sketcher.Constraint("Coincident", 2, 1, 3, 1),
    Sketcher.Constraint("Coincident", 3, 2, 0, 2),
    Sketcher.Constraint("Vertical", 1),
    Sketcher.Constraint("Vertical", 3),
    Sketcher.Constraint("Coincident", 2, 3, 0, 3),
    Sketcher.Constraint("Equal", 0, 2),
    Sketcher.Constraint("Horizontal", 1, 2, 2, 1),
    Sketcher.Constraint("DistanceY", -1, 1, 0, 3, Q("1 in")),
    Sketcher.Constraint("Radius", 0, Q("2.64 mm")),
    Sketcher.Constraint("DistanceX", -1, 1, 0, 3, Q("0.5625 in")),
    Sketcher.Constraint("DistanceY", 1, 2, 1, 1, Q("5.184438 mm")),
])
pocket7 = doc.addObject("PartDesign::Pocket", "Pocket006")
body.addObject(pocket7)
pocket7.Profile = sketch12
pocket7.Length = Q("0.08 in")
pocket7.Reversed = True
doc.recompute()

datumline2 = doc.addObject("PartDesign::Line", "DatumLine001")
body.addObject(datumline2)
datumline2.Placement = App.Placement(App.Vector(0, 3.185, 0), App.Rotation(App.Vector(0, 0, 1), App.Vector(0, 0, 1)))
polarpattern = doc.addObject("PartDesign::PolarPattern", "PolarPattern")
body.addObject(polarpattern)
polarpattern.Originals = [pad2, revolution, pocket4, pocket5, pocket6, groove, pocket7]
polarpattern.Axis = (datumline2, [""])
polarpattern.Angle = 360
polarpattern.Occurrences = 4
body.Tip = polarpattern

sketch13 = doc.addObject("Sketcher::SketchObject", "Sketch012")
body.addObject(sketch13)
sketch13.AttachmentSupport = (doc.XY_Plane, [""])
sketch13.MapMode = "FlatFace"
sketch13.AttachmentOffset = App.Placement(App.Vector(0, 0, 2.25 * 25.4), App.Rotation())
add_polygon(sketch13, [(-57.15, 53.975), (-57.15, -53.975), (57.15, -53.975), (57.15, 53.975)])
sketch13.addConstraint([
    Sketcher.Constraint("Vertical", 0),
    Sketcher.Constraint("Horizontal", 1),
    Sketcher.Constraint("Vertical", 2),
    Sketcher.Constraint("Horizontal", 3),
    Sketcher.Constraint("Symmetric", 0, 2, 2, 2, -1, 1),
    Sketcher.Constraint("DistanceX", 1, 1, 1, 2, Q("4.5 in")),
    Sketcher.Constraint("DistanceY", 0, 2, 0, 1, Q("4.25 in")),
])
pocket8 = doc.addObject("PartDesign::Pocket", "Pocket007")
body.addObject(pocket8)
pocket8.Profile = sketch13
pocket8.Length = Q("4.25 in")

sketch14 = doc.addObject("Sketcher::SketchObject", "Sketch013")
body.addObject(sketch14)
sketch14.AttachmentSupport = (doc.XY_Plane, [""])
sketch14.MapMode = "FlatFace"
sketch14.AttachmentOffset = App.Placement(App.Vector(0, 0, -2.25 * 25.4), App.Rotation())
sketch14.addGeometry(Part.Circle(App.Vector(20.375, 3.075, 0), App.Vector(0, 0, 1), 2.5), False)
sketch14.addConstraint([
    Sketcher.Constraint("Diameter", 0, Q("5 mm")),
    Sketcher.Constraint("DistanceX", -1, 1, 0, 3, Q("20.375 mm")),
    Sketcher.Constraint("DistanceY", -1, 1, 0, 3, Q("3.075 mm")),
])
pocket9 = doc.addObject("PartDesign::Pocket", "Pocket008")
body.addObject(pocket9)
pocket9.Profile = sketch14
pocket9.Type = "UpToFirst"
pocket9.Reversed = True

sketch15 = doc.addObject("Sketcher::SketchObject", "Sketch014")
body.addObject(sketch15)
sketch15.AttachmentSupport = (doc.XY_Plane, [""])
sketch15.MapMode = "FlatFace"
sketch15.AttachmentOffset = App.Placement(App.Vector(0, 0, -2.25 * 25.4), App.Rotation())
sketch15.addGeometry(Part.Circle(App.Vector(-20.375, 3.075, 0), App.Vector(0, 0, 1), 2.5), False)
sketch15.addConstraint([
    Sketcher.Constraint("Diameter", 0, Q("5 mm")),
    Sketcher.Constraint("DistanceX", 0, 3, -1, 1, Q("20.375 mm")),
    Sketcher.Constraint("DistanceY", -1, 1, 0, 3, Q("3.075 mm")),
])
pocket10 = doc.addObject("PartDesign::Pocket", "Pocket009")
body.addObject(pocket10)
pocket10.Profile = sketch15
pocket10.Type = "UpToFirst"
pocket10.Reversed = True

sketch16 = doc.addObject("Sketcher::SketchObject", "Sketch015")
body.addObject(sketch16)
sketch16.AttachmentSupport = (doc.XY_Plane, [""])
sketch16.MapMode = "FlatFace"
sketch16.AttachmentOffset = App.Placement(App.Vector(0, 0, -2.25 * 25.4), App.Rotation())
sketch16.addGeometry(Part.Circle(App.Vector(-20.375, -34.925, 0), App.Vector(0, 0, 1), 2.5), False)
sketch16.addConstraint([
    Sketcher.Constraint("Diameter", 0, Q("5 mm")),
    Sketcher.Constraint("DistanceY", 0, 3, -1, 1, Q("1.375 in")),
    Sketcher.Constraint("DistanceX", 0, 3, -1, 1, Q("20.375 mm")),
])
pocket11 = doc.addObject("PartDesign::Pocket", "Pocket010")
body.addObject(pocket11)
pocket11.Profile = sketch16
pocket11.Type = "UpToFirst"
pocket11.Reversed = True

sketch17 = doc.addObject("Sketcher::SketchObject", "Sketch016")
body.addObject(sketch17)
sketch17.AttachmentSupport = (doc.XY_Plane, [""])
sketch17.MapMode = "FlatFace"
sketch17.AttachmentOffset = App.Placement(App.Vector(0, 0, -2.25 * 25.4), App.Rotation())
sketch17.addGeometry(Part.Circle(App.Vector(20.375, -34.925, 0), App.Vector(0, 0, 1), 2.5), False)
sketch17.addConstraint([
    Sketcher.Constraint("Diameter", 0, Q("5 mm")),
    Sketcher.Constraint("DistanceY", 0, 3, -1, 1, Q("1.375 in")),
    Sketcher.Constraint("DistanceX", -1, 1, 0, 3, Q("20.375 mm")),
])
pocket12 = doc.addObject("PartDesign::Pocket", "Pocket011")
body.addObject(pocket12)
pocket12.Profile = sketch17
pocket12.Type = "UpToFirst"
pocket12.Reversed = True

sketch18 = doc.addObject("Sketcher::SketchObject", "Sketch017")
body.addObject(sketch18)
sketch18.AttachmentSupport = (doc.XY_Plane, [""])
sketch18.MapMode = "FlatFace"
sketch18.AttachmentOffset = App.Placement(App.Vector(0, 0, -2.25 * 25.4), App.Rotation())
sketch18.addGeometry([
    Part.LineSegment(App.Vector(-50.8, 47.625, 0), App.Vector(-50.8, -41.275, 0)),
    Part.ArcOfCircle(Part.Circle(App.Vector(-50.8, -47.625, 0), App.Vector(0, 0, 1), 6.35), math.radians(0), math.radians(90)),
    Part.LineSegment(App.Vector(-44.45, -47.625, 0), App.Vector(44.45, -47.625, 0)),
    Part.ArcOfCircle(Part.Circle(App.Vector(50.8, -47.625, 0), App.Vector(0, 0, 1), 6.35), math.radians(90), math.radians(180)),
    Part.LineSegment(App.Vector(50.8, -41.275, 0), App.Vector(50.8, 47.625, 0)),
    Part.ArcOfCircle(Part.Circle(App.Vector(50.8, 53.975, 0), App.Vector(0, 0, 1), 6.35), math.radians(180), math.radians(270)),
    Part.LineSegment(App.Vector(44.45, 53.975, 0), App.Vector(57.15, 53.975, 0)),
    Part.LineSegment(App.Vector(57.15, 53.975, 0), App.Vector(57.15, -53.975, 0)),
    Part.LineSegment(App.Vector(57.15, -53.975, 0), App.Vector(-57.15, -53.975, 0)),
    Part.LineSegment(App.Vector(-57.15, -53.975, 0), App.Vector(-57.15, 53.975, 0)),
    Part.LineSegment(App.Vector(-57.15, 53.975, 0), App.Vector(-44.45, 53.975, 0)),
    Part.ArcOfCircle(Part.Circle(App.Vector(-50.8, 53.975, 0), App.Vector(0, 0, 1), 6.35), math.radians(-90), math.radians(0)),
], False)
sketch18.addConstraint([
    Sketcher.Constraint("Coincident", 0, 2, 1, 2),
    Sketcher.Constraint("Coincident", 1, 1, 2, 1),
    Sketcher.Constraint("Coincident", 2, 2, 3, 2),
    Sketcher.Constraint("Coincident", 3, 1, 4, 1),
    Sketcher.Constraint("Coincident", 4, 2, 5, 2),
    Sketcher.Constraint("Coincident", 5, 1, 6, 1),
    Sketcher.Constraint("Coincident", 6, 2, 7, 1),
    Sketcher.Constraint("Coincident", 7, 2, 8, 1),
    Sketcher.Constraint("Coincident", 8, 2, 9, 1),
    Sketcher.Constraint("Coincident", 9, 2, 10, 1),
    Sketcher.Constraint("Coincident", 10, 2, 11, 2),
    Sketcher.Constraint("Coincident", 11, 1, 0, 1),
    Sketcher.Constraint("Vertical", 0),
    Sketcher.Constraint("Horizontal", 2),
    Sketcher.Constraint("Vertical", 4),
    Sketcher.Constraint("Horizontal", 6),
    Sketcher.Constraint("Vertical", 7),
    Sketcher.Constraint("Horizontal", 8),
    Sketcher.Constraint("Vertical", 9),
    Sketcher.Constraint("Horizontal", 10),
    Sketcher.Constraint("Equal", 1, 3),
    Sketcher.Constraint("Equal", 3, 5),
    Sketcher.Constraint("Equal", 5, 11),
    Sketcher.Constraint("Symmetric", 6, 2, 8, 2, -1, 1),
    Sketcher.Constraint("Symmetric", 1, 3, 3, 3, -2),
    Sketcher.Constraint("Symmetric", 5, 3, 11, 3, -2),
    Sketcher.Constraint("Horizontal", 3, 3, 1, 1),
    Sketcher.Constraint("Horizontal", 11, 3, 5, 1),
    Sketcher.Constraint("Horizontal", 6, 2, 9, 2),
    Sketcher.Constraint("Vertical", 3, 3, 5, 3),
    Sketcher.Constraint("Vertical", 11, 3, 0, 2),
    Sketcher.Constraint("Vertical", 5, 3, 3, 1),
    Sketcher.Constraint("Equal", 2, 0),
    Sketcher.Constraint("Radius", 1, Q("0.25 in")),
    Sketcher.Constraint("DistanceX", 2, 1, 2, 2, Q("3.5 in")),
    Sketcher.Constraint("DistanceX", 6, 1, 6, 2, Q("0.5 in")),
    Sketcher.Constraint("DistanceY", 7, 2, 4, 2, Q("4 in")),
])
pocket13 = doc.addObject("PartDesign::Pocket", "Pocket012")
body.addObject(pocket13)
pocket13.Profile = sketch18
pocket13.Length = Q("0.25 in")
pocket13.Reversed = True

doc.recompute()
